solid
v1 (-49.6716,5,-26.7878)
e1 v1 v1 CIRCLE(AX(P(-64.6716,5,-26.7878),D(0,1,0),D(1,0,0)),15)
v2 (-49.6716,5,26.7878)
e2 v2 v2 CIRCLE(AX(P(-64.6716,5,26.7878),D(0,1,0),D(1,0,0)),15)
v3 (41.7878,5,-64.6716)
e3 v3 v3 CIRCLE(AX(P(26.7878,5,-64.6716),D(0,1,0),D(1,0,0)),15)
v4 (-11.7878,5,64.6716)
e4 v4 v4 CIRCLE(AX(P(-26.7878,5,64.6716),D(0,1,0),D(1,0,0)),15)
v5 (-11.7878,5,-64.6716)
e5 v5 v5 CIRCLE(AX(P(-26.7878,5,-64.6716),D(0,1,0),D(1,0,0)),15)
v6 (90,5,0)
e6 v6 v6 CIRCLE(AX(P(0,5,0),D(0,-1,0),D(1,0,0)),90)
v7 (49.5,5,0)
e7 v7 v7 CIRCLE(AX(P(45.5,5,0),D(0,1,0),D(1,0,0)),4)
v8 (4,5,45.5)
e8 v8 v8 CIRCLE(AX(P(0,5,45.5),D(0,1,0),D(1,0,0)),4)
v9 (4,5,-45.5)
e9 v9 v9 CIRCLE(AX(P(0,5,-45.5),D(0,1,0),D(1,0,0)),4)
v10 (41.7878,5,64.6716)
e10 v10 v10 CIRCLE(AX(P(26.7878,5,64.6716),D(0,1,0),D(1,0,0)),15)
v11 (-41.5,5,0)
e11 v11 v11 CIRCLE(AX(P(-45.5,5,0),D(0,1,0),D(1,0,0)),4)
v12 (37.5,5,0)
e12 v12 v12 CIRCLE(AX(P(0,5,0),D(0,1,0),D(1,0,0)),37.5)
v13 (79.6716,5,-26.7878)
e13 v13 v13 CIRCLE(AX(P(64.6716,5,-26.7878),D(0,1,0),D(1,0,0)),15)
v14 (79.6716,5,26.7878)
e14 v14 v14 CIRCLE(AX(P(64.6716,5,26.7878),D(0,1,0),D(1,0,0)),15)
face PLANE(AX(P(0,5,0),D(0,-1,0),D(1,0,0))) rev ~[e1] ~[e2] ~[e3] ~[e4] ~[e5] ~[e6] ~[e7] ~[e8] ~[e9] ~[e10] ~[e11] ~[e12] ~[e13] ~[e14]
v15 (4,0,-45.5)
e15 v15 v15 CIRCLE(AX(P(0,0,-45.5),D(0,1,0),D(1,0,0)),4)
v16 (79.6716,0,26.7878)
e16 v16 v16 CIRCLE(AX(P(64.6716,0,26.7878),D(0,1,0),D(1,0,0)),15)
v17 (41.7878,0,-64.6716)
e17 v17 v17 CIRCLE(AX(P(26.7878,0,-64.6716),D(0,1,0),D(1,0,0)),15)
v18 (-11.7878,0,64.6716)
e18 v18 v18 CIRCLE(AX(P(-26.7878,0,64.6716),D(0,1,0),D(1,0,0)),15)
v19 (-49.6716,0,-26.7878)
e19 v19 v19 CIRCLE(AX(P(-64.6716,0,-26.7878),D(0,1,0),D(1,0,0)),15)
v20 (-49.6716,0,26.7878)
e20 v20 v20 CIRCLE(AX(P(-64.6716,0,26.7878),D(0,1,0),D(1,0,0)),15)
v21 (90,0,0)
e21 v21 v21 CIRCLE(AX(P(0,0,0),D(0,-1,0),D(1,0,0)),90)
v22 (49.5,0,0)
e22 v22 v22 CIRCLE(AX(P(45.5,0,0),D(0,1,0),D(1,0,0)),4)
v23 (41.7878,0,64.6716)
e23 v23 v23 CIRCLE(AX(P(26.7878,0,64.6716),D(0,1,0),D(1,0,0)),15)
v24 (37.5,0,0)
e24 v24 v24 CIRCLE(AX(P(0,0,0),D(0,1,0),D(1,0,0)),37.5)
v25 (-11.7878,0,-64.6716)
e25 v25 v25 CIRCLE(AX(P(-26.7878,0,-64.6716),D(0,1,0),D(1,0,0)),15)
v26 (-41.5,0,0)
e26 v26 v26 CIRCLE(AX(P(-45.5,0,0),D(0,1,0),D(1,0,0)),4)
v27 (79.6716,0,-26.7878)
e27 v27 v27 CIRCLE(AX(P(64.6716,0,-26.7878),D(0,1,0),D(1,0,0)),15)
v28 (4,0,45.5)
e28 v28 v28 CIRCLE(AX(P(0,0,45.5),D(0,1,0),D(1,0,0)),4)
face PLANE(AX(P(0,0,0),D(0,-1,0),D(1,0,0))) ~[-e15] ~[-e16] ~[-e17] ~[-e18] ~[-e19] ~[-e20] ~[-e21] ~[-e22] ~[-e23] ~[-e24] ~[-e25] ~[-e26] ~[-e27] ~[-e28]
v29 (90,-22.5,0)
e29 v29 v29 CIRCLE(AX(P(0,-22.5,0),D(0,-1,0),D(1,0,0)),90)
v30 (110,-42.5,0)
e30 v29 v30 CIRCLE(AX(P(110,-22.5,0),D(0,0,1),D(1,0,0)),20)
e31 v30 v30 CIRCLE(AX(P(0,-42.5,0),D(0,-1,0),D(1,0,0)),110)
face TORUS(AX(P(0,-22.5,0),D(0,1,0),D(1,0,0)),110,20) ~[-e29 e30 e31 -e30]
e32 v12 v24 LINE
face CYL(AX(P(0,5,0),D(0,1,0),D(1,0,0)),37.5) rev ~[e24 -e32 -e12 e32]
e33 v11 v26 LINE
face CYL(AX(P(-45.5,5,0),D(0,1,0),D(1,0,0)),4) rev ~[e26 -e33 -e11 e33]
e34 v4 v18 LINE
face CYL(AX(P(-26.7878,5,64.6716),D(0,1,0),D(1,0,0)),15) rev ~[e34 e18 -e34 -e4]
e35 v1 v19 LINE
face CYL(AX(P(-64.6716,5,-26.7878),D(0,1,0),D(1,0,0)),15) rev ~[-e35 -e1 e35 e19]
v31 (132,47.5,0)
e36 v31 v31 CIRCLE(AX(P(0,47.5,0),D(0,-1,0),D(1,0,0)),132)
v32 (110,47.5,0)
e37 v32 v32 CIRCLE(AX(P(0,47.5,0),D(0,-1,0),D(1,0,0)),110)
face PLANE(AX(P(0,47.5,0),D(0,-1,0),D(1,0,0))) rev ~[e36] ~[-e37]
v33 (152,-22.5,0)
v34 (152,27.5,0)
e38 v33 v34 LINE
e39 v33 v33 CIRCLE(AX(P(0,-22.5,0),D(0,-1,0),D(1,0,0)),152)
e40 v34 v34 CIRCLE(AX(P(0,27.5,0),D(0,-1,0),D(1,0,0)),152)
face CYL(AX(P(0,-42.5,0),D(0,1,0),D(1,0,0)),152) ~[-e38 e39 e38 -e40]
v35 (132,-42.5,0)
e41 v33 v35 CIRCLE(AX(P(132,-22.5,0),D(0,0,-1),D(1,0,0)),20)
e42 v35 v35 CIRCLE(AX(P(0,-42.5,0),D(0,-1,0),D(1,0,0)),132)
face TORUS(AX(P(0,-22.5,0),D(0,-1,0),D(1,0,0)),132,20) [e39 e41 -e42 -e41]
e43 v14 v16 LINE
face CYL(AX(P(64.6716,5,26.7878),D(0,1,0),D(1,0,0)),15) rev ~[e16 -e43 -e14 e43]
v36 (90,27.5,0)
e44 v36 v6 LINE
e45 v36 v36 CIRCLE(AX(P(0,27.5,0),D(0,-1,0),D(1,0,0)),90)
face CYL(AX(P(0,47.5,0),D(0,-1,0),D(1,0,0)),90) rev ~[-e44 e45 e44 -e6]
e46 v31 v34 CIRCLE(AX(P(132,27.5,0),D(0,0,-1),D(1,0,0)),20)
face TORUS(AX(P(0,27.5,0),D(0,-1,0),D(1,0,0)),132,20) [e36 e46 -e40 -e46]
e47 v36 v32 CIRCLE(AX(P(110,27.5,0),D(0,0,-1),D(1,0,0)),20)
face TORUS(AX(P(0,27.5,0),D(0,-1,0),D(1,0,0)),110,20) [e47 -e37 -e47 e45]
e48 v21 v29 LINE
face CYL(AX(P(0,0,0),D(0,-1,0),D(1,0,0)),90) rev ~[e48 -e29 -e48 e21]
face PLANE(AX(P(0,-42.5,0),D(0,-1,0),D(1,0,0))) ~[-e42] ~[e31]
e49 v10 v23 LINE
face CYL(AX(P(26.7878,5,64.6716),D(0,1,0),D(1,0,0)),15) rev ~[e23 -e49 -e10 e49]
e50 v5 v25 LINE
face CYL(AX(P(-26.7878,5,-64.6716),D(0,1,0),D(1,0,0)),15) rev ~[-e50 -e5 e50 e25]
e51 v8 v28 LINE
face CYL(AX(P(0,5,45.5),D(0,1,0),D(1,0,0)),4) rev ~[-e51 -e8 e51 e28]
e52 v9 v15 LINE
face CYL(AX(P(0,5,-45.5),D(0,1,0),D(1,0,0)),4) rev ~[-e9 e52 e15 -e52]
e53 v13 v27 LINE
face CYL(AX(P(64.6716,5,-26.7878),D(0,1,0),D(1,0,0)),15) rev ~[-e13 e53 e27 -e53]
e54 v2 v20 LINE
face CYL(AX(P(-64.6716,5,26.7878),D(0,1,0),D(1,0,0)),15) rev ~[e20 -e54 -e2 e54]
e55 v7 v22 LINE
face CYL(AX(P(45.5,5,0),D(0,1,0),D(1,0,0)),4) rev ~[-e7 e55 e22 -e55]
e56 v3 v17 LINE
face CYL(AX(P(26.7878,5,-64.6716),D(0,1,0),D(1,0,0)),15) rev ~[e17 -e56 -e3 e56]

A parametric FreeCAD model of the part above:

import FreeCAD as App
import Part
import Sketcher

V = App.Vector
Q = App.Units.Quantity


def edges_at(feature, points):
    """Names of the edges that pass closest to the given points."""
    edges = feature.Shape.Edges
    near = lambda p: min(range(len(edges)), key=lambda i: edges[i].distToShape(Part.Vertex(*p))[0])
    return sorted({f"Edge{near(p) + 1}" for p in points})


def add_polygon(sketch, points):
    """Adds a closed chain of lines whose ends are joined by coincident constraints."""
    first, n = sketch.GeometryCount, len(points)
    for a, b in zip(points, points[1:] + points[:1]):
        sketch.addGeometry(Part.LineSegment(App.Vector(*a, 0), App.Vector(*b, 0)), False)
    for i in range(n):
        sketch.addConstraint(Sketcher.Constraint("Coincident", first + i, 2, first + (i + 1) % n, 1))

doc = App.newDocument("Part")
body = doc.addObject("PartDesign::Body", "Body")

# Sketch on XY plane
sketch1 = body.newObject("Sketcher::SketchObject", "Sketch")
sketch1.AttachmentSupport = (doc.getObject("XY_Plane"), [""])
sketch1.MapMode = "FlatFace"
add_polygon(sketch1, [(0, 5), (0, 0), (90, 0), (90, -42.5), (152, -42.5), (152, 47.5), (90, 47.5), (90, 5)])  # lines 0-7
sketch1.addConstraint([
    Sketcher.Constraint("Vertical", 0),
    Sketcher.Constraint("Horizontal", 1),
    Sketcher.Constraint("Vertical", 2),
    Sketcher.Constraint("Horizontal", 3),
    Sketcher.Constraint("Vertical", 4),
    Sketcher.Constraint("Horizontal", 5),
    Sketcher.Constraint("Vertical", 6),
    Sketcher.Constraint("Horizontal", 7),
    Sketcher.Constraint("Coincident", 0, 2, -1, 1),
    Sketcher.Constraint("Vertical", 2, 2, 5, 2),
    Sketcher.Constraint("Equal", 7, 4),
    Sketcher.Constraint("Equal", 2, 6),
    Sketcher.Constraint("DistanceX", 1, 1, 1, 2, Q("90 mm")),
    Sketcher.Constraint("DistanceY", 0, 2, 0, 1, Q("5 mm")),
    Sketcher.Constraint("DistanceX", -1, 1, 3, 2, Q("152 mm")),
])
revolution = body.newObject("PartDesign::Revolution", "Revolution")
revolution.Profile = sketch1
revolution.ReferenceAxis = (sketch1, ["V_Axis"])
revolution.Angle = 360

# Sketch on XZ plane
sketch2 = body.newObject("Sketcher::SketchObject", "Sketch001")
sketch2.AttachmentSupport = (doc.getObject("XZ_Plane"), [""])
sketch2.MapMode = "FlatFace"
sketch2.AttachmentOffset = App.Placement(V(0, 0, -5), App.Rotation())
sketch2.addGeometry([
    Part.Circle(V(0, 0, 0), V(0, 0, 1), 37.5),  # 0
    Part.Circle(V(0, -45.5, 0), V(0, 0, 1), 4),  # 1
    Part.Circle(V(-45.5, 0, 0), V(0, 0, 1), 4),  # 2
    Part.Circle(V(0, 45.5, 0), V(0, 0, 1), 4),  # 3
    Part.Circle(V(45.5, 0, 0), V(0, 0, 1), 4),  # 4
    Part.Circle(V(26.7878, -64.6716, 0), V(0, 0, 1), 15),  # 5
    Part.Circle(V(-26.7878, -64.6716, 0), V(0, 0, 1), 15),  # 6
    Part.Circle(V(-64.6716, -26.7878, 0), V(0, 0, 1), 15),  # 7
    Part.Circle(V(-64.6716, 26.7878, 0), V(0, 0, 1), 15),  # 8
    Part.Circle(V(-26.7878, 64.6716, 0), V(0, 0, 1), 15),  # 9
    Part.Circle(V(26.7878, 64.6716, 0), V(0, 0, 1), 15),  # 10
    Part.Circle(V(64.6716, 26.7878, 0), V(0, 0, 1), 15),  # 11
    Part.Circle(V(64.6716, -26.7878, 0), V(0, 0, 1), 15),  # 12
], False)
sketch2.addConstraint([
    Sketcher.Constraint("Coincident", 0, 3, -1, 1),
    Sketcher.Constraint("Equal", 1, 2),
    Sketcher.Constraint("Equal", 2, 3),
    Sketcher.Constraint("Equal", 3, 4),
    Sketcher.Constraint("Equal", 5, 6),
    Sketcher.Constraint("Equal", 6, 7),
    Sketcher.Constraint("Equal", 7, 8),
    Sketcher.Constraint("Equal", 8, 9),
    Sketcher.Constraint("Equal", 9, 10),
    Sketcher.Constraint("Equal", 10, 11),
    Sketcher.Constraint("Equal", 11, 12),
    Sketcher.Constraint("Symmetric", 1, 3, 3, 3, -1, 1),
    Sketcher.Constraint("Symmetric", 2, 3, 4, 3, -1, 1),
    Sketcher.Constraint("Symmetric", 5, 3, 9, 3, -1, 1),
    Sketcher.Constraint("Symmetric", 6, 3, 10, 3, -1, 1),
    Sketcher.Constraint("Symmetric", 7, 3, 11, 3, -1, 1),
    Sketcher.Constraint("Symmetric", 8, 3, 12, 3, -1, 1),
    Sketcher.Constraint("Symmetric", 5, 3, 6, 3, -2),
    Sketcher.Constraint("Symmetric", 8, 3, 11, 3, -2),
    Sketcher.Constraint("PointOnObject", 1, 3, -2),
    Sketcher.Constraint("PointOnObject", 2, 3, -1),
    Sketcher.Constraint("Diameter", 0, Q("75 mm")),
    Sketcher.Constraint("Diameter", 1, Q("8 mm")),
    Sketcher.Constraint("Diameter", 5, Q("30 mm")),
    Sketcher.Constraint("DistanceY", 1, 3, -1, 1, Q("45.5 mm")),
    Sketcher.Constraint("DistanceX", 2, 3, -1, 1, Q("45.5 mm")),
    Sketcher.Constraint("DistanceX", -1, 1, 5, 3, Q("26.7878 mm")),
    Sketcher.Constraint("DistanceY", 5, 3, -1, 1, Q("64.6716 mm")),
    Sketcher.Constraint("DistanceX", 7, 3, -1, 1, Q("64.6716 mm")),
    Sketcher.Constraint("DistanceY", 7, 3, -1, 1, Q("26.7878 mm")),
])
pocket1 = body.newObject("PartDesign::Pocket", "Pocket")
pocket1.Profile = sketch2
pocket1.Type = "UpToFirst"
pocket1.Reversed = True
doc.recompute()

fillet = body.newObject("PartDesign::Fillet", "Fillet")
fillet.Base = (pocket1, edges_at(pocket1, [
    (-152, 47.5, 0),
    (-152, -42.5, 0),
    (-90, 47.5, 0),
    (-90, -42.5, 0),
]))
fillet.Radius = 20

doc.recompute()
